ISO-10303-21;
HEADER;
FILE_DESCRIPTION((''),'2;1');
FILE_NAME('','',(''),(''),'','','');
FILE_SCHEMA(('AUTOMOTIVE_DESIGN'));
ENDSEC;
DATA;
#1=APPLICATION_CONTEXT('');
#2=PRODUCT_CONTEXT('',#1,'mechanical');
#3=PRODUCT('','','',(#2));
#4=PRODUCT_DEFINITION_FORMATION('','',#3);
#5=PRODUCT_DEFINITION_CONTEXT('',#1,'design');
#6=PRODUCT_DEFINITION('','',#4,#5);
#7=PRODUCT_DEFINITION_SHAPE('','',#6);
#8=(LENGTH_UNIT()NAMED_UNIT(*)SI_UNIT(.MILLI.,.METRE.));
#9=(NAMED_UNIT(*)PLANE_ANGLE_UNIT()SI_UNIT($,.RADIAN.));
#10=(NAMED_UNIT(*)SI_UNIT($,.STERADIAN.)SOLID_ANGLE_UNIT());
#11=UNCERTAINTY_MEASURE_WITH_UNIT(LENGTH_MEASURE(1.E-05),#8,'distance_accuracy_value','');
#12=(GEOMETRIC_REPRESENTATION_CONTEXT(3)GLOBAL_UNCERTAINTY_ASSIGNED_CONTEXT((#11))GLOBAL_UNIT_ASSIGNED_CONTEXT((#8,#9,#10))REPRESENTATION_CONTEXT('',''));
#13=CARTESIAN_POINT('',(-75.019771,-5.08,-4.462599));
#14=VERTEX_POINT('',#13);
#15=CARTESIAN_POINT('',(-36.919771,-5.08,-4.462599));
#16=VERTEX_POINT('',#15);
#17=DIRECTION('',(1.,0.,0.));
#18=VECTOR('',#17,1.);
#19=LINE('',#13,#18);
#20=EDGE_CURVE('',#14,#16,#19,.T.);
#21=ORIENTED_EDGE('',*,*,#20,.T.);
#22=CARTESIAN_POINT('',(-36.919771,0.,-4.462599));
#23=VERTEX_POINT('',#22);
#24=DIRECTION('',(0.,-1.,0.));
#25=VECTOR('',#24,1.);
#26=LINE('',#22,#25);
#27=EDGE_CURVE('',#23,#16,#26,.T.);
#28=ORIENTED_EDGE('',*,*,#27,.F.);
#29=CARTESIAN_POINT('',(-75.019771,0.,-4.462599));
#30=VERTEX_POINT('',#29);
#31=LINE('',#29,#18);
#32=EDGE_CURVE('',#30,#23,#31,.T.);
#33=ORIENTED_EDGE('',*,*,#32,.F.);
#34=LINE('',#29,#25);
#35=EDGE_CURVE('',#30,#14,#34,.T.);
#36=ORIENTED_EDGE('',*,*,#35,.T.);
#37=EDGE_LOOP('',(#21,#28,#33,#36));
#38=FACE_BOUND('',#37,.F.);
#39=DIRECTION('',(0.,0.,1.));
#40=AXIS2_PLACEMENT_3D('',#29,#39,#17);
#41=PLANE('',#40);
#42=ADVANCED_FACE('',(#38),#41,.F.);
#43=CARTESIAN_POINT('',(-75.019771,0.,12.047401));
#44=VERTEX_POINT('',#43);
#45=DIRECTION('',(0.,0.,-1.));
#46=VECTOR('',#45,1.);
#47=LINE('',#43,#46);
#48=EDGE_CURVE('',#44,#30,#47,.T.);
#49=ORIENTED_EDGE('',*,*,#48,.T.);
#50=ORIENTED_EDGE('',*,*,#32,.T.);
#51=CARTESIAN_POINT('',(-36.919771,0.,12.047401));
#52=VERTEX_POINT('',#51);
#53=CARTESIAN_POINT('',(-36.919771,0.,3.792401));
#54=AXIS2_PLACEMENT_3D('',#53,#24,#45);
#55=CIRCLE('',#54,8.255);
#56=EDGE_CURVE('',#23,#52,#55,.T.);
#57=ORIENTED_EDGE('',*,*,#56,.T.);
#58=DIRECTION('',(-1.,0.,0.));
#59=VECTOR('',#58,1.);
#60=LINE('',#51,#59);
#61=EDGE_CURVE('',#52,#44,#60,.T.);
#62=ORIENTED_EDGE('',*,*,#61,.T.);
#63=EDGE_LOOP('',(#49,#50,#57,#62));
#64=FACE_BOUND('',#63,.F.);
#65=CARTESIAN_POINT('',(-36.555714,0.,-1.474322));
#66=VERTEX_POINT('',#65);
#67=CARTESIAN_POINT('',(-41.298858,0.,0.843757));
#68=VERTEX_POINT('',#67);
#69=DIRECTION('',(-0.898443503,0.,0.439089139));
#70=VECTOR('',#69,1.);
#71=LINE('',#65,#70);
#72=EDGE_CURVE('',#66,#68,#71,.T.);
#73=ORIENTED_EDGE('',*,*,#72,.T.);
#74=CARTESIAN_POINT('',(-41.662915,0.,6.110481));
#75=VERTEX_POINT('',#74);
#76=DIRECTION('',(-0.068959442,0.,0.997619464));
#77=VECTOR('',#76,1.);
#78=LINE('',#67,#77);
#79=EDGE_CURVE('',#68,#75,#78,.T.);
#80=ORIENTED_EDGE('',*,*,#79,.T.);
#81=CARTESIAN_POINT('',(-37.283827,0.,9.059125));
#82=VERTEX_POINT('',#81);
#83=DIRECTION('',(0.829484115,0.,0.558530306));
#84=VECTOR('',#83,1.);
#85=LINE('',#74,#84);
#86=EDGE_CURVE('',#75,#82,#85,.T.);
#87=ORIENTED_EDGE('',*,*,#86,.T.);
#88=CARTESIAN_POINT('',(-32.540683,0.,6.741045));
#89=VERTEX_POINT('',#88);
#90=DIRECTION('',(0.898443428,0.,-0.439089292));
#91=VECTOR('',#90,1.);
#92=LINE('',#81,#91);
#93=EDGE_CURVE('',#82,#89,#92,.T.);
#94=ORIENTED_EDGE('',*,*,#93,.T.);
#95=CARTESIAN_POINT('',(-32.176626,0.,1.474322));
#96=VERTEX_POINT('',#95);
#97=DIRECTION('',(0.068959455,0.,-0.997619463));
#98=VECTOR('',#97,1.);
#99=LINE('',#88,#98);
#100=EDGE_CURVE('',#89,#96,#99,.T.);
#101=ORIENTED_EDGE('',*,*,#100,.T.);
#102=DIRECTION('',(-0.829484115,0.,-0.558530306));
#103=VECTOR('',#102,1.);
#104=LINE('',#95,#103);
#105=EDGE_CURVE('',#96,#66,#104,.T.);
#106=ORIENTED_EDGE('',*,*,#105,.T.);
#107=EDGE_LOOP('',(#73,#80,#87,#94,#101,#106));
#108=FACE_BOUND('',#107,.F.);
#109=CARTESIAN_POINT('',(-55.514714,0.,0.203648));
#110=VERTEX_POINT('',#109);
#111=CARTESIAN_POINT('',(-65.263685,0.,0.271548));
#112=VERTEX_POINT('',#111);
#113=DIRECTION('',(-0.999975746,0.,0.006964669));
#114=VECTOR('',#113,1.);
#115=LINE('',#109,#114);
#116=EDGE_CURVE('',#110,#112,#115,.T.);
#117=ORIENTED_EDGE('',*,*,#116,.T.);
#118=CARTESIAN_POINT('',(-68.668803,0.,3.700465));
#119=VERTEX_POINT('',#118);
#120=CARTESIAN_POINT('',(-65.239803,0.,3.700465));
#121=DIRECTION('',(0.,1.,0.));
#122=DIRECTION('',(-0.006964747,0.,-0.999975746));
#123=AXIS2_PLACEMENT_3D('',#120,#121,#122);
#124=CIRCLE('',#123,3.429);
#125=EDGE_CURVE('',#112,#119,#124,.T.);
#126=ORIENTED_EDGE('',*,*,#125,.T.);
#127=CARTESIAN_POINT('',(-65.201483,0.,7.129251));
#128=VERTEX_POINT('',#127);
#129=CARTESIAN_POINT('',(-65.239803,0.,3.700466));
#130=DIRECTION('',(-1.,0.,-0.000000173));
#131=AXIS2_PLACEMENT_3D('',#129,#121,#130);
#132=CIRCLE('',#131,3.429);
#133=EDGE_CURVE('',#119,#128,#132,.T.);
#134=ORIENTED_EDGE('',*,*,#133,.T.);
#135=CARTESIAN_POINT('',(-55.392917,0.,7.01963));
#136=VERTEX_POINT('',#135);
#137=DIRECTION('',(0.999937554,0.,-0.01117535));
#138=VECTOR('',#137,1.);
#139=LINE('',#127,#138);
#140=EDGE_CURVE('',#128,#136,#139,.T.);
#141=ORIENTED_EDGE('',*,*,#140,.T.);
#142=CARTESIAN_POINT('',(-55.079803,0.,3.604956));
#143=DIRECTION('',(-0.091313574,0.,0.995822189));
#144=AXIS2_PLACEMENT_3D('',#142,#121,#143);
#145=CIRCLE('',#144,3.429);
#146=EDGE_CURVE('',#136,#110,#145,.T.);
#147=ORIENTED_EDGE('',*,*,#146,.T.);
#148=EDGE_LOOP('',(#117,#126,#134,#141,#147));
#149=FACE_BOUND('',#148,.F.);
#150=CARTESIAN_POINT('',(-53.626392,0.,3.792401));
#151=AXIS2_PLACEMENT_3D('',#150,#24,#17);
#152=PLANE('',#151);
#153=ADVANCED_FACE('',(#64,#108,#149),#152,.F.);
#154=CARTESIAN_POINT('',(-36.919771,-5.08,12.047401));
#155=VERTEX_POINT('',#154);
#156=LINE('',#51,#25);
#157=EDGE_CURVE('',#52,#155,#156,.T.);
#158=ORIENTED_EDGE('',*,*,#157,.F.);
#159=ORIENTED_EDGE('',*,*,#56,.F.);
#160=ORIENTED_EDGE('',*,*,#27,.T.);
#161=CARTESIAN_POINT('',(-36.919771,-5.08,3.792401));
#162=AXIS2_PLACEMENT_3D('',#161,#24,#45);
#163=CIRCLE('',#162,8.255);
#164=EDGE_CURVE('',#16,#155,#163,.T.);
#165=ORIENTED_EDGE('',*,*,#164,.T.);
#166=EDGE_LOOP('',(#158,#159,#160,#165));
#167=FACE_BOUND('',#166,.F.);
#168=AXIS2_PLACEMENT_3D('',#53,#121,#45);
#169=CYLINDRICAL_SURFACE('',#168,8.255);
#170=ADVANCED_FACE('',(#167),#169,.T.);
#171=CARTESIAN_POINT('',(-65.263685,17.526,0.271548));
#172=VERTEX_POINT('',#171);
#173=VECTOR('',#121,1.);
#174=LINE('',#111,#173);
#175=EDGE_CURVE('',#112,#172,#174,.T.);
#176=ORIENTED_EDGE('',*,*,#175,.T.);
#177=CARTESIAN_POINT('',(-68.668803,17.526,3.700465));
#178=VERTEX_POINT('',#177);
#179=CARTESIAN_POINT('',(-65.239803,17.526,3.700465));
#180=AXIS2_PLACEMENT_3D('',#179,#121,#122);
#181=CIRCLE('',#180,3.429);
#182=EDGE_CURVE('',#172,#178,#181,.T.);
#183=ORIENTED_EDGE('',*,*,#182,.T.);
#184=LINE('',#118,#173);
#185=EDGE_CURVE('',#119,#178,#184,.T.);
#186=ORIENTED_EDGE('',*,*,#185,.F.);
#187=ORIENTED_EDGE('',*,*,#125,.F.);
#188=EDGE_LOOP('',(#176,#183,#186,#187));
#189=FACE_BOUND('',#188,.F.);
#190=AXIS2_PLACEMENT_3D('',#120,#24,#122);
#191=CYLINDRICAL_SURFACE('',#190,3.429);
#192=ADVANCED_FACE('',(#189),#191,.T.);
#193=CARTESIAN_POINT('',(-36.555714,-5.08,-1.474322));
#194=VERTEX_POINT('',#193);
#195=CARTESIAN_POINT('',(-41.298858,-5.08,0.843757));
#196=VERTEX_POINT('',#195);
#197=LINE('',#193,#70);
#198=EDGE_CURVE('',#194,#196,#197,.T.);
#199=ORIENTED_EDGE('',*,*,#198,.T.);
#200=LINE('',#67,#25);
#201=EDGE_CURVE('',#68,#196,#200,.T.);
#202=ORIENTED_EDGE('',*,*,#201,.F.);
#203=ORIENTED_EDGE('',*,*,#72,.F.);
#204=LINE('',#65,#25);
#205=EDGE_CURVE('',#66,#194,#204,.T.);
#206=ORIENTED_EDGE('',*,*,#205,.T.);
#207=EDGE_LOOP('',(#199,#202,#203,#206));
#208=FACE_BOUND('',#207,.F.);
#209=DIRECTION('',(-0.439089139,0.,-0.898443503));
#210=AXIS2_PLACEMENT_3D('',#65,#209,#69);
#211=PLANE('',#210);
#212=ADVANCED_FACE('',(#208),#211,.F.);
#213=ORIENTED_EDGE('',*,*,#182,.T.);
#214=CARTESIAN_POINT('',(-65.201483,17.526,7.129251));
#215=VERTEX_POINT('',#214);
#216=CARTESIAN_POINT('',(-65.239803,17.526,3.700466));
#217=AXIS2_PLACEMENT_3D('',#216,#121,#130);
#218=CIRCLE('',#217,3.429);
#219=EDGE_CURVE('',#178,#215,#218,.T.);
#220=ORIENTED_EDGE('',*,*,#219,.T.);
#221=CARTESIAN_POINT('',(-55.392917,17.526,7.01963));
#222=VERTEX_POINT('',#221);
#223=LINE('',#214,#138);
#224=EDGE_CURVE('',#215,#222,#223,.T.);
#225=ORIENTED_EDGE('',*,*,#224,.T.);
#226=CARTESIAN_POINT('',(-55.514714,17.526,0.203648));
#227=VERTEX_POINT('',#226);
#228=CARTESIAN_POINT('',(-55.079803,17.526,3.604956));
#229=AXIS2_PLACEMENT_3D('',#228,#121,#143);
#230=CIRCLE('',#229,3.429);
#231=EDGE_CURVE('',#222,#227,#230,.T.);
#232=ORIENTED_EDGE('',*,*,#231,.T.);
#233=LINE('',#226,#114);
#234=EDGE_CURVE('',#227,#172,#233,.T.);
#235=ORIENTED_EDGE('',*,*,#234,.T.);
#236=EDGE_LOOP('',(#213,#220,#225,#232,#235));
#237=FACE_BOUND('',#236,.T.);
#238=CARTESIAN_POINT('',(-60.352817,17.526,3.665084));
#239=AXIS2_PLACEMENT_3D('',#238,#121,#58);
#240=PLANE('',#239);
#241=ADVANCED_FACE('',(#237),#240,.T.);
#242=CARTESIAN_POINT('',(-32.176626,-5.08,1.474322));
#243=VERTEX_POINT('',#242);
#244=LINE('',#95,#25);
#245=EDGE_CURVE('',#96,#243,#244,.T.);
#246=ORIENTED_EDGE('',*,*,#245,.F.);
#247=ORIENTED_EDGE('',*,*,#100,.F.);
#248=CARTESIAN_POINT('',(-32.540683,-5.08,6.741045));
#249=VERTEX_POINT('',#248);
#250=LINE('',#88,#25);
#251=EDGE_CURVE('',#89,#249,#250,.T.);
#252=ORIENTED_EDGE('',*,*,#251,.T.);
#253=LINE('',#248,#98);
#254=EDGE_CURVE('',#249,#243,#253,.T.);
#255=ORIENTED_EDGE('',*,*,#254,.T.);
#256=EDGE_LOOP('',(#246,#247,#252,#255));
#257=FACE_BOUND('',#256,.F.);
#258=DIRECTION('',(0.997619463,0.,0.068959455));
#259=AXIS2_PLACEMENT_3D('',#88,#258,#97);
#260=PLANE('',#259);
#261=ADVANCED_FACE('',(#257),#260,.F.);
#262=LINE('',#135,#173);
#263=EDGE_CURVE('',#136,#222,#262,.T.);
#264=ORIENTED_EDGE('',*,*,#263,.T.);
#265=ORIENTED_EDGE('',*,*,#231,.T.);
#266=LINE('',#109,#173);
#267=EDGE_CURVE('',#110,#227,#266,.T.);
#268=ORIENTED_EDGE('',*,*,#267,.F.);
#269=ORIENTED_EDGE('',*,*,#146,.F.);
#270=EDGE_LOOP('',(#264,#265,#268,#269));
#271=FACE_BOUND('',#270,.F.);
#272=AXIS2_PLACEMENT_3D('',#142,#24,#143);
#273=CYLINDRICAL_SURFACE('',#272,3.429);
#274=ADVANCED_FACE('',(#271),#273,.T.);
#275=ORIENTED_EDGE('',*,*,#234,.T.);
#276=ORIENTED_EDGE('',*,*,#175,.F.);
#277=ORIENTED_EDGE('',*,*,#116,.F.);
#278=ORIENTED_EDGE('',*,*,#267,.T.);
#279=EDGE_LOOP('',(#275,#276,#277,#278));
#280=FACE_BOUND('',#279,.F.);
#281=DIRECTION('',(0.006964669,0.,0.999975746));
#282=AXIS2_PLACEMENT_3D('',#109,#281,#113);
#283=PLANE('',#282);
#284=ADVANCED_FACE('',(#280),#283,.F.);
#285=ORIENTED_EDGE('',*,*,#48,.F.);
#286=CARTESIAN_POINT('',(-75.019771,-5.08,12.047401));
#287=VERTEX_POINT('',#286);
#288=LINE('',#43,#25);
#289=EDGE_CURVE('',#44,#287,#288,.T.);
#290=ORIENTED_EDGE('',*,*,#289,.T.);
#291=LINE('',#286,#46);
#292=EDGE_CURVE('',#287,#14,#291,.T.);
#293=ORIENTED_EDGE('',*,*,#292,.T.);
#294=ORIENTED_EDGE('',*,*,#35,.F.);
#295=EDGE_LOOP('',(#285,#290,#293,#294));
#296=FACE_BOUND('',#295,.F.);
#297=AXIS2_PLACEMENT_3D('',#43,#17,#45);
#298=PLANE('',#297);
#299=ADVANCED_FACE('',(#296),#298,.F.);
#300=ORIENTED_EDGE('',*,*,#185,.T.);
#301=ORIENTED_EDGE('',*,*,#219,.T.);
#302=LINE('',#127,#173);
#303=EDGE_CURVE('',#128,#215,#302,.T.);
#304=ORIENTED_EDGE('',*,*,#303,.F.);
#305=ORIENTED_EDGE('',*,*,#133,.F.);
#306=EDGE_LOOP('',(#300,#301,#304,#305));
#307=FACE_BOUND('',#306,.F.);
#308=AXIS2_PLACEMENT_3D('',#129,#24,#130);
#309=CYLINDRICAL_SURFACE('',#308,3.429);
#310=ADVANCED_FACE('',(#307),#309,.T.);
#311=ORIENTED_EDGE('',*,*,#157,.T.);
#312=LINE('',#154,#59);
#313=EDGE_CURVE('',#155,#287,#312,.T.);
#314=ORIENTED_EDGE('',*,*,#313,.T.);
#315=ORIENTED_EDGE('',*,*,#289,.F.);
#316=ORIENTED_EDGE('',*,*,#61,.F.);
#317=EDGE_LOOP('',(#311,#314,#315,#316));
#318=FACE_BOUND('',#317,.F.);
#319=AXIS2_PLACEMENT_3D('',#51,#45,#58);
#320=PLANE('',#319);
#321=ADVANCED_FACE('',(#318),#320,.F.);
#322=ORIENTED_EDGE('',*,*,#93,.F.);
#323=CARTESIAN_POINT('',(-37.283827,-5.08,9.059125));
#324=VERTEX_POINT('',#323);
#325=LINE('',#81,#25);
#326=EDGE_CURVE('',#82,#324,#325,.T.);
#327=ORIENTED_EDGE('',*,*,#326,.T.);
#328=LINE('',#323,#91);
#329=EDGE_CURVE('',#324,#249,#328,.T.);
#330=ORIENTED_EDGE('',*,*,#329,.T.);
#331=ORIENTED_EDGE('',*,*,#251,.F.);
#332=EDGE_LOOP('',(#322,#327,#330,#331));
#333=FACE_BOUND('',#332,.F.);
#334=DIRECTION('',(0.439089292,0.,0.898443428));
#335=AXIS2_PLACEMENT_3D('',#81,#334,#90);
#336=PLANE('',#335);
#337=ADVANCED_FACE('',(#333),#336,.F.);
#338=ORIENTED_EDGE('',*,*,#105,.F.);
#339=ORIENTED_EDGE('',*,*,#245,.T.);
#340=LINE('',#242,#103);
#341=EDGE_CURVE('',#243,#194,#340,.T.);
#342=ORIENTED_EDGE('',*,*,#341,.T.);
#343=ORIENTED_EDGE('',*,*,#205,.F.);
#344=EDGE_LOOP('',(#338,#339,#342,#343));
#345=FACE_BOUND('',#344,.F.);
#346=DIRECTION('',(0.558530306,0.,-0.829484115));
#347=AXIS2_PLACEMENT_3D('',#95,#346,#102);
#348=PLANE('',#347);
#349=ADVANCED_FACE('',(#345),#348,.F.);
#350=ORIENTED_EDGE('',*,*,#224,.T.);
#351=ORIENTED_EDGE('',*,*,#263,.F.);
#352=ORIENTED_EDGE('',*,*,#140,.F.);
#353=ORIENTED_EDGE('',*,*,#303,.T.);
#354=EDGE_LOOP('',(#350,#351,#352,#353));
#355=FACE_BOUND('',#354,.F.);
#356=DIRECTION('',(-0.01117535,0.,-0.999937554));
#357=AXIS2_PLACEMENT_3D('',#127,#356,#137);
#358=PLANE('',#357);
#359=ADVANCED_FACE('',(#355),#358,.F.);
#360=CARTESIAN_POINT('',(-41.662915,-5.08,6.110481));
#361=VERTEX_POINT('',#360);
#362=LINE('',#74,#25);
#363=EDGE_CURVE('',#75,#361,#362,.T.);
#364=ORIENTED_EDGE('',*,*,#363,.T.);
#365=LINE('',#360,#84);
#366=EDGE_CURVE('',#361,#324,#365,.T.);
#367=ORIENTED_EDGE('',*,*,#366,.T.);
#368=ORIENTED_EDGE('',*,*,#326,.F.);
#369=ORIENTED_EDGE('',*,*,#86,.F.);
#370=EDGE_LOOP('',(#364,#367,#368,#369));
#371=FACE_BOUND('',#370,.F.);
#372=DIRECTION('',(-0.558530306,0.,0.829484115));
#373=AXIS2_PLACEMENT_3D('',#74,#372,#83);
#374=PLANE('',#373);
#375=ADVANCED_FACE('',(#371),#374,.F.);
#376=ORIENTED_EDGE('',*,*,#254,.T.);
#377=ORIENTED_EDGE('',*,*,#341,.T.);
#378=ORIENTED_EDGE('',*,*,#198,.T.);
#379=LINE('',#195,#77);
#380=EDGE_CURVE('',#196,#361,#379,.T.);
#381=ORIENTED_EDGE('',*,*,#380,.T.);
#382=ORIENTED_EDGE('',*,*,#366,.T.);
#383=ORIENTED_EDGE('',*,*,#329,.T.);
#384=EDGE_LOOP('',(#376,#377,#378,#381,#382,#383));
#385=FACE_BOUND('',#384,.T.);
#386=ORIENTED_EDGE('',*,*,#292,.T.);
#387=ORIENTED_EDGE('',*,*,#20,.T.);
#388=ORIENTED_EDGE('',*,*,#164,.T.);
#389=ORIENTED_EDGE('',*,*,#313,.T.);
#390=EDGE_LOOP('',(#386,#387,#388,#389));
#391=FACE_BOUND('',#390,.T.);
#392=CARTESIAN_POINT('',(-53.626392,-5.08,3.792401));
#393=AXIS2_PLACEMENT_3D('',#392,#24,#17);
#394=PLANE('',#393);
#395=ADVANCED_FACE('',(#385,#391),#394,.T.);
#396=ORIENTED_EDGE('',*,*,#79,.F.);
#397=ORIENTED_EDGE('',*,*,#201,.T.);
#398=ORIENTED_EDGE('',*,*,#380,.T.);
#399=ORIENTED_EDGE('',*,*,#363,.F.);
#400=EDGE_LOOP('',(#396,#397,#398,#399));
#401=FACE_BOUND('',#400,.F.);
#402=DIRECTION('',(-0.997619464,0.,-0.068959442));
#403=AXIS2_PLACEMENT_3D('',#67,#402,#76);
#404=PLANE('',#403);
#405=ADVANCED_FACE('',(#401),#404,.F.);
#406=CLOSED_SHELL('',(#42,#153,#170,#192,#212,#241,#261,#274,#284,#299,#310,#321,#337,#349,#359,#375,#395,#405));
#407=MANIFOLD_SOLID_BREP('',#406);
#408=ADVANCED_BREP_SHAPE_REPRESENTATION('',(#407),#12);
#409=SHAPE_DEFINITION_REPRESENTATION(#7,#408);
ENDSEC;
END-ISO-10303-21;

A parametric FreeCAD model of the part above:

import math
import FreeCAD as App
import Part
import Sketcher
from FreeCAD import Vector
Q = App.Units.Quantity


def add_polygon(sketch, points):
    """Adds a closed chain of lines whose ends are joined by coincident constraints."""
    first, n = sketch.GeometryCount, len(points)
    for a, b in zip(points, points[1:] + points[:1]):
        sketch.addGeometry(Part.LineSegment(App.Vector(*a, 0), App.Vector(*b, 0)), False)
    for i in range(n):
        sketch.addConstraint(Sketcher.Constraint("Coincident", first + i, 2, first + (i + 1) % n, 1))

doc = App.newDocument("Part")
params = doc.addObject("Spreadsheet::Sheet", "Params")
for row, (alias, value) in enumerate([
    ("sketch1_width", "1.5 in"),
    ("sketch1_radius", "0.325 in"),
    ("pad1_length", "0.2 in"),
    ("sketch2_radius", "0.135 in"),
    ("pad2_length", "0.69 in"),
], start=1):
    params.set(f"A{row}", alias)
    params.set(f"B{row}", "=" + value)
    params.setAlias(f"B{row}", alias)

body = doc.addObject("PartDesign::Body", "Body")

sketch1 = body.newObject("Sketcher::SketchObject", "Sketch")
sketch1.AttachmentSupport = (doc.getObject("XZ_Plane"), [""])
sketch1.MapMode = "FlatFace"
sketch1.addGeometry(Part.LineSegment(Vector(-36.919771, 12.047401, 0), Vector(-75.019771, 12.047401, 0)), False)
sketch1.addGeometry(Part.LineSegment(Vector(-75.019771, 12.047401, 0), Vector(-75.019771, -4.462599, 0)), False)
sketch1.addGeometry(Part.LineSegment(Vector(-75.019771, -4.462599, 0), Vector(-36.919771, -4.462599, 0)), False)
sketch1.addGeometry(Part.ArcOfCircle(Part.Circle(Vector(-36.919771, 3.792401, 0), Vector(0, 0, 1), 8.255), math.radians(-90), math.radians(90)), False)
add_polygon(sketch1, [(-37.283827, 9.059125), (-32.540683, 6.741045), (-32.176626, 1.474322), (-36.555714, -1.474322), (-41.298858, 0.843757), (-41.662915, 6.110481)])
sketch1.addConstraint([
    Sketcher.Constraint("Coincident", 0, 2, 1, 1),
    Sketcher.Constraint("Coincident", 1, 2, 2, 1),
    Sketcher.Constraint("Tangent", 2, 2, 3, 1),
    Sketcher.Constraint("Tangent", 3, 2, 0, 1),
    Sketcher.Constraint("Horizontal", 0),
    Sketcher.Constraint("Vertical", 1),
    Sketcher.Constraint("Horizontal", 2),
    Sketcher.Constraint("Parallel", 4, 7),
    Sketcher.Constraint("Parallel", 5, 8),
    Sketcher.Constraint("Parallel", 6, 9),
    Sketcher.Constraint("Equal", 4, 5),
    Sketcher.Constraint("Equal", 5, 6),
    Sketcher.Constraint("Equal", 6, 7),
    Sketcher.Constraint("DistanceX", 0, 2, 0, 1, Q("1.5 in")),
    Sketcher.Constraint("Radius", 3, Q("0.325 in")),
    Sketcher.Constraint("DistanceY", -1, 1, 3, 3, Q("3.792401 mm")),
    Sketcher.Constraint("DistanceX", 8, 2, 6, 2, Q("5.107201 mm")),
    Sketcher.Constraint("Distance", 4, Q("5.279291 mm")),
    Sketcher.Constraint("DistanceX", 3, 3, -1, 1, Q("36.919771 mm")),
    Sketcher.Constraint("DistanceY", -1, 1, 5, 2, Q("1.474322 mm")),
    Sketcher.Constraint("DistanceY", 6, 2, -1, 1, Q("1.474322 mm")),
    Sketcher.Constraint("DistanceX", 7, 2, -1, 1, Q("41.298858 mm")),
    Sketcher.Constraint("DistanceY", -1, 1, 8, 2, Q("6.110481 mm")),
])
sketch1.setExpression("Constraints[19]", "Params.sketch1_width")
sketch1.setExpression("Constraints[20]", "Params.sketch1_radius")
pad1 = body.newObject("PartDesign::Pad", "Pad")
pad1.Profile = sketch1
pad1.setExpression("Length", "Params.pad1_length")

sketch2 = body.newObject("Sketcher::SketchObject", "Sketch001")
sketch2.AttachmentSupport = (doc.getObject("XZ_Plane"), [""])
sketch2.MapMode = "FlatFace"
sketch2.addGeometry([
    Part.LineSegment(Vector(-65.201483, 7.129251, 0), Vector(-55.392917, 7.01963, 0)),
    Part.ArcOfCircle(Part.Circle(Vector(-55.079803, 3.604956, 0), Vector(0, 0, 1), 3.429), math.radians(-97.286636), math.radians(95.239181)),
    Part.LineSegment(Vector(-55.514714, 0.203648, 0), Vector(-65.263685, 0.271548, 0)),
    Part.ArcOfCircle(Part.Circle(Vector(-65.239803, 3.700465, 0), Vector(0, 0, 1), 3.429), math.radians(179.999999), math.radians(269.600946)),
    Part.ArcOfCircle(Part.Circle(Vector(-65.239803, 3.700466, 0), Vector(0, 0, 1), 3.429), math.radians(89.359683), math.radians(180.00001)),
], False)
sketch2.addConstraint([
    Sketcher.Constraint("Coincident", 0, 2, 1, 2),
    Sketcher.Constraint("Coincident", 1, 1, 2, 1),
    Sketcher.Constraint("Tangent", 2, 2, 3, 2),
    Sketcher.Constraint("Tangent", 3, 1, 4, 2),
    Sketcher.Constraint("Tangent", 4, 1, 0, 1),
    Sketcher.Constraint("Equal", 1, 3),
    Sketcher.Constraint("Equal", 3, 4),
    Sketcher.Constraint("Horizontal", 4, 3, 3, 1),
    Sketcher.Constraint("Radius", 1, Q("0.135 in")),
    Sketcher.Constraint("DistanceX", 3, 3, 1, 3, Q("0.4 in")),
    Sketcher.Constraint("DistanceY", 1, 1, 2, 2, Q("0.0679 mm")),
    Sketcher.Constraint("DistanceX", 2, 2, 4, 1, Q("0.062202 mm")),
    Sketcher.Constraint("Distance", 0, Q("9.809179 mm")),
    Sketcher.Constraint("DistanceY", -1, 1, 0, 2, Q("7.01963 mm")),
    Sketcher.Constraint("DistanceX", 1, 3, -1, 1, Q("55.079803 mm")),
])
sketch2.setExpression("Constraints[8]", "Params.sketch2_radius")
pad2 = body.newObject("PartDesign::Pad", "Pad001")
pad2.Profile = sketch2
pad2.setExpression("Length", "Params.pad2_length")
pad2.Reversed = True

doc.recompute()
